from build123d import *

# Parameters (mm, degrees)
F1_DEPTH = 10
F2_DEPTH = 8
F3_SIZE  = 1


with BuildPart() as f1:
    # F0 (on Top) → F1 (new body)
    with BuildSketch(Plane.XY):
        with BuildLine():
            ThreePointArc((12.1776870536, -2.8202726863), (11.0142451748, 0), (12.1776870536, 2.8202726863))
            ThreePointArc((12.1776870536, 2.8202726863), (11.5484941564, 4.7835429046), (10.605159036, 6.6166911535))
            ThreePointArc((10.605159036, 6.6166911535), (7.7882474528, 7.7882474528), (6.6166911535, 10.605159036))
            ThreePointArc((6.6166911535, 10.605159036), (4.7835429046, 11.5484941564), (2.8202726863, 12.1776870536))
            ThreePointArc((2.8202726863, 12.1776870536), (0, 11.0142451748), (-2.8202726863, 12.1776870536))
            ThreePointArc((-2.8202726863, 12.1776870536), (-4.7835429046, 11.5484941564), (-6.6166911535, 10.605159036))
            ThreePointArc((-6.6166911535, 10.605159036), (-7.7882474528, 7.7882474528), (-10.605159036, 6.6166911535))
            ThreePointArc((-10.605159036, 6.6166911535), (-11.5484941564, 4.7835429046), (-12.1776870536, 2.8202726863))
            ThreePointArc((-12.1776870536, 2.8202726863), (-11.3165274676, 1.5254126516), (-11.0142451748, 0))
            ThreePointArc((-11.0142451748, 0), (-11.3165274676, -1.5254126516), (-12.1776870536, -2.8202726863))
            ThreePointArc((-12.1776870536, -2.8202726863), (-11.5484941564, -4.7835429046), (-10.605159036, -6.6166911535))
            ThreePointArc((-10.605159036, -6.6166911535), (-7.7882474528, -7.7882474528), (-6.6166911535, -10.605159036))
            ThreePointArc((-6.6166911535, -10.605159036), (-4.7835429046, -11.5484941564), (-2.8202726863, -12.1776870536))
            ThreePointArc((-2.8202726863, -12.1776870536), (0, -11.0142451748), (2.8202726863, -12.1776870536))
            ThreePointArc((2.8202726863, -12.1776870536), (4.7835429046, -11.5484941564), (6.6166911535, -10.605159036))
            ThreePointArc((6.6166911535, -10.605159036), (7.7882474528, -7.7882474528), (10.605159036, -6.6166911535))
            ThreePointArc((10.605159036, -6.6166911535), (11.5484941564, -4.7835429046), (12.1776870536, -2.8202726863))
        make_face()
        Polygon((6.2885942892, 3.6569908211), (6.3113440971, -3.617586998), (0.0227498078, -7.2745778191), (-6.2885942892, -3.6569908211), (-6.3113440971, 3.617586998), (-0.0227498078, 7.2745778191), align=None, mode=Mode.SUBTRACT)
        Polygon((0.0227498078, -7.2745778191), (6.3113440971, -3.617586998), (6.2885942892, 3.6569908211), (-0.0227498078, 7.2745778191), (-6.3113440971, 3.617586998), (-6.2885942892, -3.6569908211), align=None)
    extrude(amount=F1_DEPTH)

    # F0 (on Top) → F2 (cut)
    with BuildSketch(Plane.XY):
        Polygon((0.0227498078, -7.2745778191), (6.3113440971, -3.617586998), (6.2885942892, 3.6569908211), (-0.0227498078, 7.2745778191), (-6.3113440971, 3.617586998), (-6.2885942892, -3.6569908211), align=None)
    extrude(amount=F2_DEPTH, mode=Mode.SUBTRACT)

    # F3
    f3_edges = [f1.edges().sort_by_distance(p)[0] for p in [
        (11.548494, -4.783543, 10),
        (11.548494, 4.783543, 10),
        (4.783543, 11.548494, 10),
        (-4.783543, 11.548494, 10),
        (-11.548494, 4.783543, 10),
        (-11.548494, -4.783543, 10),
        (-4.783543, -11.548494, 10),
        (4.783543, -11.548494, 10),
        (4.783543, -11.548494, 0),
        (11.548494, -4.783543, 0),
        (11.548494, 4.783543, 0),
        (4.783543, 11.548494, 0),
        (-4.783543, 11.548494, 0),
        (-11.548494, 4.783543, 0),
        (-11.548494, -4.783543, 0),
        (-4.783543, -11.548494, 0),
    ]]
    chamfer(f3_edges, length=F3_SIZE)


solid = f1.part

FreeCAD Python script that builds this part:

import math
import FreeCAD as App
import Part
import Sketcher


def edges_at(feature, points):
    """Names of the edges that pass closest to the given points."""
    edges = feature.Shape.Edges
    near = lambda p: min(range(len(edges)), key=lambda i: edges[i].distToShape(Part.Vertex(*p))[0])
    return sorted({f"Edge{near(p) + 1}" for p in points})


def add_polygon(sketch, points):
    """Adds a closed chain of lines whose ends are joined by coincident constraints."""
    first, n = sketch.GeometryCount, len(points)
    for a, b in zip(points, points[1:] + points[:1]):
        sketch.addGeometry(Part.LineSegment(App.Vector(*a, 0), App.Vector(*b, 0)), False)
    for i in range(n):
        sketch.addConstraint(Sketcher.Constraint("Coincident", first + i, 2, first + (i + 1) % n, 1))

doc = App.newDocument("Part")
body = doc.addObject("PartDesign::Body", "Body")

sketch1 = body.newObject("Sketcher::SketchObject", "Sketch")
sketch1.AttachmentSupport = (doc.getObject("XY_Plane"), [""])
sketch1.MapMode = "FlatFace"
sketch1.addGeometry([
    Part.ArcOfCircle(Part.Circle(App.Vector(15, 0, 0), App.Vector(0, 0, 1), 4), math.radians(135), math.radians(225)),
    Part.ArcOfCircle(Part.Circle(App.Vector(0, 0, 0), App.Vector(0, 0, 1), 12.5), math.radians(13.04), math.radians(31.96)),
    Part.ArcOfCircle(Part.Circle(App.Vector(10.6, 10.6, 0), App.Vector(0, 0, 1), 4), math.radians(-180), math.radians(-90)),
    Part.ArcOfCircle(Part.Circle(App.Vector(0, 0, 0), App.Vector(0, 0, 1), 12.5), math.radians(58.04), math.radians(76.96)),
    Part.ArcOfCircle(Part.Circle(App.Vector(0, 15, 0), App.Vector(0, 0, 1), 4), math.radians(-135), math.radians(-45)),
    Part.ArcOfCircle(Part.Circle(App.Vector(0, 0, 0), App.Vector(0, 0, 1), 12.5), math.radians(103.04), math.radians(121.96)),
    Part.ArcOfCircle(Part.Circle(App.Vector(-10.6, 10.6, 0), App.Vector(0, 0, 1), 4), math.radians(-90), math.radians(0)),
    Part.ArcOfCircle(Part.Circle(App.Vector(0, 0, 0), App.Vector(0, 0, 1), 12.5), math.radians(148.04), math.radians(166.96)),
    Part.ArcOfCircle(Part.Circle(App.Vector(-15, 0, 0), App.Vector(0, 0, 1), 4), math.radians(0), math.radians(45)),
    Part.ArcOfCircle(Part.Circle(App.Vector(-15, 0, 0), App.Vector(0, 0, 1), 4), math.radians(-45), math.radians(0)),
    Part.ArcOfCircle(Part.Circle(App.Vector(0, 0, 0), App.Vector(0, 0, 1), 12.5), math.radians(-166.96), math.radians(-148.04)),
    Part.ArcOfCircle(Part.Circle(App.Vector(-10.6, -10.6, 0), App.Vector(0, 0, 1), 4), math.radians(0), math.radians(90)),
    Part.ArcOfCircle(Part.Circle(App.Vector(0, 0, 0), App.Vector(0, 0, 1), 12.5), math.radians(-121.96), math.radians(-103.04)),
    Part.ArcOfCircle(Part.Circle(App.Vector(0, -15, 0), App.Vector(0, 0, 1), 4), math.radians(45), math.radians(135)),
    Part.ArcOfCircle(Part.Circle(App.Vector(0, 0, 0), App.Vector(0, 0, 1), 12.5), math.radians(-76.96), math.radians(-58.04)),
    Part.ArcOfCircle(Part.Circle(App.Vector(10.6, -10.6, 0), App.Vector(0, 0, 1), 4), math.radians(90), math.radians(180)),
    Part.ArcOfCircle(Part.Circle(App.Vector(0, 0, 0), App.Vector(0, 0, 1), 12.5), math.radians(-31.96), math.radians(-13.04)),
], False)
sketch1.addConstraint([
    Sketcher.Constraint("Coincident", 0, 1, 1, 1),
    Sketcher.Constraint("Coincident", 1, 2, 2, 2),
    Sketcher.Constraint("Coincident", 2, 1, 3, 1),
    Sketcher.Constraint("Coincident", 3, 2, 4, 2),
    Sketcher.Constraint("Coincident", 4, 1, 5, 1),
    Sketcher.Constraint("Coincident", 5, 2, 6, 2),
    Sketcher.Constraint("Coincident", 6, 1, 7, 1),
    Sketcher.Constraint("Coincident", 7, 2, 8, 2),
    Sketcher.Constraint("Tangent", 8, 1, 9, 2),
    Sketcher.Constraint("Coincident", 9, 1, 10, 1),
    Sketcher.Constraint("Coincident", 10, 2, 11, 2),
    Sketcher.Constraint("Coincident", 11, 1, 12, 1),
    Sketcher.Constraint("Coincident", 12, 2, 13, 2),
    Sketcher.Constraint("Coincident", 13, 1, 14, 1),
    Sketcher.Constraint("Coincident", 14, 2, 15, 2),
    Sketcher.Constraint("Coincident", 15, 1, 16, 1),
    Sketcher.Constraint("Coincident", 16, 2, 0, 2),
    Sketcher.Constraint("Coincident", 1, 3, -1, 1),
    Sketcher.Constraint("Coincident", 3, 3, -1, 1),
    Sketcher.Constraint("Coincident", 5, 3, -1, 1),
    Sketcher.Constraint("Coincident", 7, 3, -1, 1),
    Sketcher.Constraint("Coincident", 10, 3, -1, 1),
    Sketcher.Constraint("Coincident", 12, 3, -1, 1),
    Sketcher.Constraint("Coincident", 14, 3, -1, 1),
    Sketcher.Constraint("Coincident", 16, 3, -1, 1),
    Sketcher.Constraint("Equal", 0, 2),
    Sketcher.Constraint("Equal", 1, 3),
    Sketcher.Constraint("Equal", 2, 4),
    Sketcher.Constraint("Equal", 3, 5),
    Sketcher.Constraint("Equal", 4, 6),
    Sketcher.Constraint("Equal", 5, 7),
    Sketcher.Constraint("Equal", 6, 8),
    Sketcher.Constraint("Equal", 8, 9),
    Sketcher.Constraint("Equal", 7, 10),
    Sketcher.Constraint("Equal", 9, 11),
    Sketcher.Constraint("Equal", 10, 12),
    Sketcher.Constraint("Equal", 11, 13),
    Sketcher.Constraint("Equal", 12, 14),
    Sketcher.Constraint("Equal", 13, 15),
    Sketcher.Constraint("Equal", 14, 16),
    Sketcher.Constraint("Symmetric", 0, 3, 8, 3, -1, 1),
    Sketcher.Constraint("Symmetric", 2, 3, 11, 3, -1, 1),
    Sketcher.Constraint("Symmetric", 4, 3, 13, 3, -1, 1),
    Sketcher.Constraint("Symmetric", 6, 3, 15, 3, -1, 1),
    Sketcher.Constraint("Symmetric", 2, 3, 6, 3, -2),
    Sketcher.Constraint("PointOnObject", 0, 3, -1),
    Sketcher.Constraint("PointOnObject", 4, 3, -2),
    Sketcher.Constraint("PointOnObject", 8, 1, -1),
    Sketcher.Constraint("Radius", 0, 4.0),
    Sketcher.Constraint("Radius", 1, 12.5),
    Sketcher.Constraint("DistanceY", 0, 1, 2, 3, 7.796402),
    Sketcher.Constraint("DistanceX", 3, 2, 2, 3, 7.796402),
    Sketcher.Constraint("DistanceX", -1, 1, 1, 2, 10.605159),
    Sketcher.Constraint("DistanceX", -1, 1, 2, 1, 6.616691),
])
pad1 = body.newObject("PartDesign::Pad", "Pad")
pad1.Profile = sketch1
pad1.Length = 10

sketch2 = body.newObject("Sketcher::SketchObject", "Sketch001")
sketch2.AttachmentSupport = (doc.getObject("XY_Plane"), [""])
sketch2.MapMode = "FlatFace"
add_polygon(sketch2, [(0, -7), (6, -4), (6, 4), (0, 7), (-6, 4), (-6, -4)])
sketch2.addConstraint([
    Sketcher.Constraint("Symmetric", 0, 2, 3, 2, -1, 1),
    Sketcher.Constraint("Symmetric", 1, 2, 4, 2, -1, 1),
    Sketcher.Constraint("Symmetric", 2, 2, 5, 2, -1, 1),
    Sketcher.Constraint("Equal", 0, 1),
    Sketcher.Constraint("Equal", 1, 2),
    Sketcher.Constraint("DistanceX", 2, 2, 5, 2, 0.0455),
    Sketcher.Constraint("DistanceY", -1, 1, 1, 2, 3.656991),
    Sketcher.Constraint("DistanceX", 1, 2, 0, 2, 0.02275),
    Sketcher.Constraint("DistanceY", 3, 2, 2, 2, 3.656991),
])
pocket1 = body.newObject("PartDesign::Pocket", "Pocket")
pocket1.Profile = sketch2
pocket1.Length = 8
pocket1.Reversed = True
doc.recompute()

chamfer = body.newObject("PartDesign::Chamfer", "Chamfer")
chamfer.Base = (pocket1, edges_at(pocket1, [
    (11.548, -4.784, 10),
    (11.548, 4.784, 10),
    (4.784, 11.548, 10),
    (-4.784, 11.548, 10),
    (-11.548, 4.784, 10),
    (-11.548, -4.784, 10),
    (-4.784, -11.548, 10),
    (4.784, -11.548, 10),
    (4.784, -11.548, 0),
    (11.548, -4.784, 0),
    (11.548, 4.784, 0),
    (4.784, 11.548, 0),
    (-4.784, 11.548, 0),
    (-11.548, 4.784, 0),
    (-11.548, -4.784, 0),
    (-4.784, -11.548, 0),
]))
chamfer.Size = 1

doc.recompute()
